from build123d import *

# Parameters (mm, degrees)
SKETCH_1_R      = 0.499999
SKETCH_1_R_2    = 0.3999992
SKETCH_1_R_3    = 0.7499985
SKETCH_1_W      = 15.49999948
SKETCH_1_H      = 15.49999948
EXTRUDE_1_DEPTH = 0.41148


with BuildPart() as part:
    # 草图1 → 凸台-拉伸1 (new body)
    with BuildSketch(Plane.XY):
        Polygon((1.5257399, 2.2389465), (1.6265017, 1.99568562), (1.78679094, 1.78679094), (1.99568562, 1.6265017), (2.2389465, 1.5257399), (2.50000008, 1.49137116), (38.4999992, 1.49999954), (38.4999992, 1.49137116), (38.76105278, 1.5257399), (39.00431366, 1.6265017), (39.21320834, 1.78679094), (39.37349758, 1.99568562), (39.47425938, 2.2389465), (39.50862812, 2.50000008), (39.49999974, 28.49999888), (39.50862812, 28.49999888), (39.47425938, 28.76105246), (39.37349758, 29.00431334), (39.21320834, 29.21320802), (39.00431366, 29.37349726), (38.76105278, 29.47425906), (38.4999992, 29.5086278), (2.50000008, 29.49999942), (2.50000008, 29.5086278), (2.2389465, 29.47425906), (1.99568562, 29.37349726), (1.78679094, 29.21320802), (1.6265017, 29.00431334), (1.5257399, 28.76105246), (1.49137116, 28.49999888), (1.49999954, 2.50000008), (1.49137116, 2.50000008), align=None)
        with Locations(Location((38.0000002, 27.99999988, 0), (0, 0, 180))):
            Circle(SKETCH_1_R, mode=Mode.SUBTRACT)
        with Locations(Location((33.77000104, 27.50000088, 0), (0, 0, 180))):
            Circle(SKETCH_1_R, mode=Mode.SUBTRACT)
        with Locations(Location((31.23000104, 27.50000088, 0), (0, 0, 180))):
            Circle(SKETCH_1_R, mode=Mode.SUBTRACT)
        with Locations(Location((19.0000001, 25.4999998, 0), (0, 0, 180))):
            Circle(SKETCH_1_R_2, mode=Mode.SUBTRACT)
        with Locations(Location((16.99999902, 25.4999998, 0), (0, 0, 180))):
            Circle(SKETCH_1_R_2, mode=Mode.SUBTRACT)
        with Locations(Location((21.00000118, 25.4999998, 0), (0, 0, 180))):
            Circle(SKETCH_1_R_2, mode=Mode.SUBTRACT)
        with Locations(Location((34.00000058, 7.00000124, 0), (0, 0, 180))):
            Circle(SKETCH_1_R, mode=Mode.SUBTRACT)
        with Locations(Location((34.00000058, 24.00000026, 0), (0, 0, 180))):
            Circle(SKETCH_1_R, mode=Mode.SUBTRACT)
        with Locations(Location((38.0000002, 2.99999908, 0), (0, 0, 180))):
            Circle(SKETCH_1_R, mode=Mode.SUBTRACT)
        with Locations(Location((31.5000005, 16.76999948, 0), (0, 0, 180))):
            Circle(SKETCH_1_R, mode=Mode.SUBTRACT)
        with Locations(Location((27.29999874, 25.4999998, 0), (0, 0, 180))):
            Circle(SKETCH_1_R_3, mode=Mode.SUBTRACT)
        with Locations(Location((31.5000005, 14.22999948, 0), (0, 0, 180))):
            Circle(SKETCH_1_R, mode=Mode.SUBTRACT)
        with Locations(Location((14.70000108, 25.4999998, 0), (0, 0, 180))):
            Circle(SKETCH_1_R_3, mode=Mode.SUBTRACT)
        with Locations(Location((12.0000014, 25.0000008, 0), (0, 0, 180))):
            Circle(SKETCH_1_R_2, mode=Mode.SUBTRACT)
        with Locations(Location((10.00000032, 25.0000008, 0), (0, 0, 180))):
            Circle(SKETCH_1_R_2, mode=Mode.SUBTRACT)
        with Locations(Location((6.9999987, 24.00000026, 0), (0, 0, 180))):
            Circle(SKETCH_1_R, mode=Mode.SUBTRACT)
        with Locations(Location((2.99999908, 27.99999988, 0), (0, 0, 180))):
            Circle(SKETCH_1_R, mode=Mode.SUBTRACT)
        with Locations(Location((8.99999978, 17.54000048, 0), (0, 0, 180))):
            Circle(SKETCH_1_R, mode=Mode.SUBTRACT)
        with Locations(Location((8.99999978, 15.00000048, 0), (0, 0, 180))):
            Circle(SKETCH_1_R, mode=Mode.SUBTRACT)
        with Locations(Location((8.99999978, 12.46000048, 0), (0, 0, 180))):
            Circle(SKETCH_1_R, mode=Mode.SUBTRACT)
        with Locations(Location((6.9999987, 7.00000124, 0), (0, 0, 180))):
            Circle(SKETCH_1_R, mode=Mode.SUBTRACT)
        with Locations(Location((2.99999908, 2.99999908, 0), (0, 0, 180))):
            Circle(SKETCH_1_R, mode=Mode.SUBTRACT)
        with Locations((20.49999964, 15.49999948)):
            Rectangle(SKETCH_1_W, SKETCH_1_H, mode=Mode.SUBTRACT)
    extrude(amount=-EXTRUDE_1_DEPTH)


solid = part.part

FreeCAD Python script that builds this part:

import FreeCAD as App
import Part
import Sketcher

V = App.Vector
Q = App.Units.Quantity


def add_polygon(sketch, points):
    """Adds a closed chain of lines whose ends are joined by coincident constraints."""
    first, n = sketch.GeometryCount, len(points)
    for a, b in zip(points, points[1:] + points[:1]):
        sketch.addGeometry(Part.LineSegment(App.Vector(*a, 0), App.Vector(*b, 0)), False)
    for i in range(n):
        sketch.addConstraint(Sketcher.Constraint("Coincident", first + i, 2, first + (i + 1) % n, 1))

doc = App.newDocument("Part")
body = doc.addObject("PartDesign::Body", "Body")

# Sketch on XY plane
sketch1 = doc.addObject("Sketcher::SketchObject", "Sketch")
body.addObject(sketch1)
sketch1.AttachmentSupport = (doc.XY_Plane, [""])
sketch1.MapMode = "FlatFace"
add_polygon(sketch1, [(1.526, 2.239), (1.627, 1.996), (1.787, 1.787), (1.996, 1.627), (2.239, 1.526), (2.5, 1.491), (38.5, 1.5), (38.5, 1.491), (38.761, 1.526), (39.004, 1.627), (39.213, 1.787), (39.373, 1.996), (39.474, 2.239), (39.509, 2.5), (39.5, 28.5), (39.509, 28.5), (39.474, 28.761), (39.373, 29.004), (39.213, 29.213), (39.004, 29.373), (38.761, 29.474), (38.5, 29.509), (2.5, 29.5), (2.5, 29.509), (2.239, 29.474), (1.996, 29.373), (1.787, 29.213), (1.627, 29.004), (1.526, 28.761), (1.491, 28.5), (1.5, 2.5), (1.491, 2.5)])  # lines 0-31
sketch1.addGeometry(Part.Circle(V(3, 3, 0), V(0, 0, 1), 0.5), False)  # 32
sketch1.addGeometry(Part.Circle(V(7, 7, 0), V(0, 0, 1), 0.5), False)  # 33
sketch1.addGeometry(Part.Circle(V(9, 12.46, 0), V(0, 0, 1), 0.5), False)  # 34
sketch1.addGeometry(Part.Circle(V(9, 15, 0), V(0, 0, 1), 0.5), False)  # 35
add_polygon(sketch1, [(28.25, 7.75), (12.75, 7.75), (12.75, 23.25), (28.25, 23.25)])  # lines 36-39
sketch1.addGeometry(Part.Circle(V(38, 3, 0), V(0, 0, 1), 0.5), False)  # 40
sketch1.addGeometry(Part.Circle(V(34, 7, 0), V(0, 0, 1), 0.5), False)  # 41
sketch1.addGeometry(Part.Circle(V(31.5, 14.23, 0), V(0, 0, 1), 0.5), False)  # 42
sketch1.addGeometry(Part.Circle(V(9, 17.54, 0), V(0, 0, 1), 0.5), False)  # 43
sketch1.addGeometry(Part.Circle(V(7, 24, 0), V(0, 0, 1), 0.5), False)  # 44
sketch1.addGeometry(Part.Circle(V(10, 25, 0), V(0, 0, 1), 0.4), False)  # 45
sketch1.addGeometry(Part.Circle(V(3, 28, 0), V(0, 0, 1), 0.5), False)  # 46
sketch1.addGeometry(Part.Circle(V(12, 25, 0), V(0, 0, 1), 0.4), False)  # 47
sketch1.addGeometry(Part.Circle(V(14.7, 25.5, 0), V(0, 0, 1), 0.75), False)  # 48
sketch1.addGeometry(Part.Circle(V(17, 25.5, 0), V(0, 0, 1), 0.4), False)  # 49
sketch1.addGeometry(Part.Circle(V(19, 25.5, 0), V(0, 0, 1), 0.4), False)  # 50
sketch1.addGeometry(Part.Circle(V(31.5, 16.77, 0), V(0, 0, 1), 0.5), False)  # 51
sketch1.addGeometry(Part.Circle(V(21, 25.5, 0), V(0, 0, 1), 0.4), False)  # 52
sketch1.addGeometry(Part.Circle(V(27.3, 25.5, 0), V(0, 0, 1), 0.75), False)  # 53
sketch1.addGeometry(Part.Circle(V(34, 24, 0), V(0, 0, 1), 0.5), False)  # 54
sketch1.addGeometry(Part.Circle(V(31.23, 27.5, 0), V(0, 0, 1), 0.5), False)  # 55
sketch1.addGeometry(Part.Circle(V(33.77, 27.5, 0), V(0, 0, 1), 0.5), False)  # 56
sketch1.addGeometry(Part.Circle(V(38, 28, 0), V(0, 0, 1), 0.5), False)  # 57
sketch1.addConstraint([
    Sketcher.Constraint("Vertical", 6),
    Sketcher.Constraint("Horizontal", 14),
    Sketcher.Constraint("Vertical", 22),
    Sketcher.Constraint("Horizontal", 30),
    Sketcher.Constraint("Horizontal", 36),
    Sketcher.Constraint("Vertical", 37),
    Sketcher.Constraint("Horizontal", 38),
    Sketcher.Constraint("Vertical", 39),
    Sketcher.Constraint("Equal", 32, 33),
    Sketcher.Constraint("Equal", 33, 34),
    Sketcher.Constraint("Equal", 34, 35),
    Sketcher.Constraint("Equal", 35, 40),
    Sketcher.Constraint("Equal", 40, 41),
    Sketcher.Constraint("Equal", 41, 42),
    Sketcher.Constraint("Equal", 42, 43),
    Sketcher.Constraint("Equal", 43, 44),
    Sketcher.Constraint("Equal", 44, 46),
    Sketcher.Constraint("Equal", 45, 47),
    Sketcher.Constraint("Equal", 47, 49),
    Sketcher.Constraint("Equal", 49, 50),
    Sketcher.Constraint("Equal", 46, 51),
    Sketcher.Constraint("Equal", 50, 52),
    Sketcher.Constraint("Equal", 48, 53),
    Sketcher.Constraint("Equal", 51, 54),
    Sketcher.Constraint("Equal", 54, 55),
    Sketcher.Constraint("Equal", 55, 56),
    Sketcher.Constraint("Equal", 56, 57),
    Sketcher.Constraint("Perpendicular", 0, 8),
    Sketcher.Constraint("Perpendicular", 1, 9),
    Sketcher.Constraint("Perpendicular", 2, 10),
    Sketcher.Constraint("Perpendicular", 3, 11),
    Sketcher.Constraint("Perpendicular", 4, 12),
    Sketcher.Constraint("Perpendicular", 7, 15),
    Sketcher.Constraint("Perpendicular", 8, 16),
    Sketcher.Constraint("Perpendicular", 9, 17),
    Sketcher.Constraint("Perpendicular", 10, 18),
    Sketcher.Constraint("Perpendicular", 11, 19),
    Sketcher.Constraint("Perpendicular", 12, 20),
    Sketcher.Constraint("Parallel", 5, 21),
    Sketcher.Constraint("Perpendicular", 15, 23),
    Sketcher.Constraint("Perpendicular", 16, 24),
    Sketcher.Constraint("Perpendicular", 17, 25),
    Sketcher.Constraint("Perpendicular", 18, 26),
    Sketcher.Constraint("Perpendicular", 19, 27),
    Sketcher.Constraint("Perpendicular", 20, 28),
    Sketcher.Constraint("Parallel", 13, 29),
    Sketcher.Constraint("Perpendicular", 23, 31),
    Sketcher.Constraint("Horizontal", 32, 3, 40, 3),
    Sketcher.Constraint("Horizontal", 33, 3, 41, 3),
    Sketcher.Constraint("Horizontal", 45, 3, 47, 3),
    Sketcher.Constraint("Horizontal", 48, 3, 49, 3),
    Sketcher.Constraint("Horizontal", 49, 3, 50, 3),
    Sketcher.Constraint("Horizontal", 50, 3, 52, 3),
    Sketcher.Constraint("Horizontal", 52, 3, 53, 3),
    Sketcher.Constraint("Horizontal", 44, 3, 54, 3),
    Sketcher.Constraint("Horizontal", 55, 3, 56, 3),
    Sketcher.Constraint("Horizontal", 46, 3, 57, 3),
    Sketcher.Constraint("Horizontal", 4, 2, 6, 2),
    Sketcher.Constraint("Horizontal", 3, 2, 7, 2),
    Sketcher.Constraint("Horizontal", 2, 2, 8, 2),
    Sketcher.Constraint("Horizontal", 1, 2, 9, 2),
    Sketcher.Constraint("Horizontal", 0, 2, 10, 2),
    Sketcher.Constraint("Horizontal", 20, 2, 22, 2),
    Sketcher.Constraint("Horizontal", 19, 2, 23, 2),
    Sketcher.Constraint("Horizontal", 18, 2, 24, 2),
    Sketcher.Constraint("Horizontal", 17, 2, 25, 2),
    Sketcher.Constraint("Horizontal", 16, 2, 26, 2),
    Sketcher.Constraint("Horizontal", 15, 2, 27, 2),
    Sketcher.Constraint("Horizontal", 14, 2, 28, 2),
    Sketcher.Constraint("Horizontal", 12, 2, 29, 2),
    Sketcher.Constraint("Horizontal", 11, 2, 31, 2),
    Sketcher.Constraint("Vertical", 34, 3, 35, 3),
    Sketcher.Constraint("Vertical", 35, 3, 43, 3),
    Sketcher.Constraint("Vertical", 33, 3, 44, 3),
    Sketcher.Constraint("Vertical", 32, 3, 46, 3),
    Sketcher.Constraint("Vertical", 42, 3, 51, 3),
    Sketcher.Constraint("Vertical", 41, 3, 54, 3),
    Sketcher.Constraint("Vertical", 40, 3, 57, 3),
    Sketcher.Constraint("Vertical", 12, 2, 14, 2),
    Sketcher.Constraint("Vertical", 11, 2, 15, 2),
    Sketcher.Constraint("Vertical", 10, 2, 16, 2),
    Sketcher.Constraint("Vertical", 9, 2, 17, 2),
    Sketcher.Constraint("Vertical", 8, 2, 18, 2),
    Sketcher.Constraint("Vertical", 7, 2, 19, 2),
    Sketcher.Constraint("Vertical", 6, 2, 20, 2),
    Sketcher.Constraint("Vertical", 4, 2, 21, 2),
    Sketcher.Constraint("Vertical", 3, 2, 23, 2),
    Sketcher.Constraint("Vertical", 2, 2, 24, 2),
    Sketcher.Constraint("Vertical", 1, 2, 25, 2),
    Sketcher.Constraint("Equal", 30, 6),
    Sketcher.Constraint("Equal", 38, 37),
    Sketcher.Constraint("Equal", 0, 1),
    Sketcher.Constraint("Equal", 1, 2),
    Sketcher.Constraint("Equal", 2, 3),
    Sketcher.Constraint("Equal", 2, 4),
    Sketcher.Constraint("Equal", 10, 12),
    Sketcher.Constraint("Diameter", 32, Q("0.999998 mm")),
    Sketcher.Constraint("Diameter", 45, Q("0.799998 mm")),
    Sketcher.Constraint("Distance", 5, Q("36 mm")),
    Sketcher.Constraint("Distance", 13, Q("26 mm")),
    Sketcher.Constraint("DistanceX", 36, 2, 36, 1, Q("15.499999 mm")),
    Sketcher.Constraint("DistanceX", -1, 1, 32, 3, Q("2.999999 mm")),
    Sketcher.Constraint("DistanceY", -1, 1, 32, 3, Q("2.999999 mm")),
    Sketcher.Constraint("DistanceX", -1, 1, 33, 3, Q("6.999999 mm")),
    Sketcher.Constraint("DistanceY", -1, 1, 33, 3, Q("7.000001 mm")),
    Sketcher.Constraint("DistanceX", -1, 1, 34, 3, Q("9 mm")),
    Sketcher.Constraint("DistanceY", -1, 1, 35, 3, Q("15 mm")),
    Sketcher.Constraint("DistanceX", -1, 1, 40, 3, Q("38 mm")),
    Sketcher.Constraint("DistanceX", -1, 1, 41, 3, Q("34.000001 mm")),
    Sketcher.Constraint("DistanceY", -1, 1, 44, 3, Q("24 mm")),
    Sketcher.Constraint("DistanceX", -1, 1, 45, 3, Q("10 mm")),
    Sketcher.Constraint("DistanceY", -1, 1, 45, 3, Q("25.000001 mm")),
    Sketcher.Constraint("DistanceY", -1, 1, 46, 3, Q("28 mm")),
    Sketcher.Constraint("DistanceX", -1, 1, 47, 3, Q("12.000001 mm")),
    Sketcher.Constraint("DistanceX", -1, 1, 49, 3, Q("16.999999 mm")),
    Sketcher.Constraint("DistanceX", -1, 1, 50, 3, Q("19 mm")),
    Sketcher.Constraint("DistanceX", -1, 1, 52, 3, Q("21.000001 mm")),
    Sketcher.Constraint("DistanceY", 53, 3, 55, 3, Q("2.000001 mm")),
    Sketcher.Constraint("DistanceX", 42, 3, 5, 2, Q("6.999999 mm")),
    Sketcher.Constraint("DistanceY", 53, 3, 13, 2, Q("2.999999 mm")),
    Sketcher.Constraint("DistanceY", 48, 3, 21, 2, Q("4 mm")),
    Sketcher.Constraint("DistanceX", -1, 1, 42, 3, Q("31.5 mm")),
    Sketcher.Constraint("DistanceX", -1, 1, 48, 3, Q("14.700001 mm")),
    Sketcher.Constraint("DistanceY", -1, 1, 48, 3, Q("25.5 mm")),
    Sketcher.Constraint("DistanceX", -1, 1, 53, 3, Q("27.299999 mm")),
    Sketcher.Constraint("DistanceY", -1, 1, 34, 3, Q("12.46 mm")),
    Sketcher.Constraint("DistanceY", -1, 1, 42, 3, Q("14.229999 mm")),
    Sketcher.Constraint("DistanceY", -1, 1, 43, 3, Q("17.54 mm")),
    Sketcher.Constraint("DistanceY", -1, 1, 51, 3, Q("16.769999 mm")),
    Sketcher.Constraint("DistanceX", -1, 1, 55, 3, Q("31.230001 mm")),
    Sketcher.Constraint("DistanceX", -1, 1, 56, 3, Q("33.770001 mm")),
    Sketcher.Constraint("DistanceX", -1, 1, 36, 2, Q("12.75 mm")),
    Sketcher.Constraint("DistanceY", -1, 1, 36, 2, Q("7.75 mm")),
    Sketcher.Constraint("Diameter", 48, Q("1.499997 mm")),
    Sketcher.Constraint("DistanceX", 14, 1, 14, 2, Q("0.008628 mm")),
    Sketcher.Constraint("DistanceX", -1, 1, 0, 2, Q("1.626502 mm")),
    Sketcher.Constraint("DistanceX", -1, 1, 1, 2, Q("1.786791 mm")),
    Sketcher.Constraint("DistanceY", -1, 1, 3, 2, Q("1.52574 mm")),
])
pad1 = doc.addObject("PartDesign::Pad", "Pad")
body.addObject(pad1)
pad1.Profile = sketch1
pad1.Length = 0.41148
pad1.Reversed = True

doc.recompute()
